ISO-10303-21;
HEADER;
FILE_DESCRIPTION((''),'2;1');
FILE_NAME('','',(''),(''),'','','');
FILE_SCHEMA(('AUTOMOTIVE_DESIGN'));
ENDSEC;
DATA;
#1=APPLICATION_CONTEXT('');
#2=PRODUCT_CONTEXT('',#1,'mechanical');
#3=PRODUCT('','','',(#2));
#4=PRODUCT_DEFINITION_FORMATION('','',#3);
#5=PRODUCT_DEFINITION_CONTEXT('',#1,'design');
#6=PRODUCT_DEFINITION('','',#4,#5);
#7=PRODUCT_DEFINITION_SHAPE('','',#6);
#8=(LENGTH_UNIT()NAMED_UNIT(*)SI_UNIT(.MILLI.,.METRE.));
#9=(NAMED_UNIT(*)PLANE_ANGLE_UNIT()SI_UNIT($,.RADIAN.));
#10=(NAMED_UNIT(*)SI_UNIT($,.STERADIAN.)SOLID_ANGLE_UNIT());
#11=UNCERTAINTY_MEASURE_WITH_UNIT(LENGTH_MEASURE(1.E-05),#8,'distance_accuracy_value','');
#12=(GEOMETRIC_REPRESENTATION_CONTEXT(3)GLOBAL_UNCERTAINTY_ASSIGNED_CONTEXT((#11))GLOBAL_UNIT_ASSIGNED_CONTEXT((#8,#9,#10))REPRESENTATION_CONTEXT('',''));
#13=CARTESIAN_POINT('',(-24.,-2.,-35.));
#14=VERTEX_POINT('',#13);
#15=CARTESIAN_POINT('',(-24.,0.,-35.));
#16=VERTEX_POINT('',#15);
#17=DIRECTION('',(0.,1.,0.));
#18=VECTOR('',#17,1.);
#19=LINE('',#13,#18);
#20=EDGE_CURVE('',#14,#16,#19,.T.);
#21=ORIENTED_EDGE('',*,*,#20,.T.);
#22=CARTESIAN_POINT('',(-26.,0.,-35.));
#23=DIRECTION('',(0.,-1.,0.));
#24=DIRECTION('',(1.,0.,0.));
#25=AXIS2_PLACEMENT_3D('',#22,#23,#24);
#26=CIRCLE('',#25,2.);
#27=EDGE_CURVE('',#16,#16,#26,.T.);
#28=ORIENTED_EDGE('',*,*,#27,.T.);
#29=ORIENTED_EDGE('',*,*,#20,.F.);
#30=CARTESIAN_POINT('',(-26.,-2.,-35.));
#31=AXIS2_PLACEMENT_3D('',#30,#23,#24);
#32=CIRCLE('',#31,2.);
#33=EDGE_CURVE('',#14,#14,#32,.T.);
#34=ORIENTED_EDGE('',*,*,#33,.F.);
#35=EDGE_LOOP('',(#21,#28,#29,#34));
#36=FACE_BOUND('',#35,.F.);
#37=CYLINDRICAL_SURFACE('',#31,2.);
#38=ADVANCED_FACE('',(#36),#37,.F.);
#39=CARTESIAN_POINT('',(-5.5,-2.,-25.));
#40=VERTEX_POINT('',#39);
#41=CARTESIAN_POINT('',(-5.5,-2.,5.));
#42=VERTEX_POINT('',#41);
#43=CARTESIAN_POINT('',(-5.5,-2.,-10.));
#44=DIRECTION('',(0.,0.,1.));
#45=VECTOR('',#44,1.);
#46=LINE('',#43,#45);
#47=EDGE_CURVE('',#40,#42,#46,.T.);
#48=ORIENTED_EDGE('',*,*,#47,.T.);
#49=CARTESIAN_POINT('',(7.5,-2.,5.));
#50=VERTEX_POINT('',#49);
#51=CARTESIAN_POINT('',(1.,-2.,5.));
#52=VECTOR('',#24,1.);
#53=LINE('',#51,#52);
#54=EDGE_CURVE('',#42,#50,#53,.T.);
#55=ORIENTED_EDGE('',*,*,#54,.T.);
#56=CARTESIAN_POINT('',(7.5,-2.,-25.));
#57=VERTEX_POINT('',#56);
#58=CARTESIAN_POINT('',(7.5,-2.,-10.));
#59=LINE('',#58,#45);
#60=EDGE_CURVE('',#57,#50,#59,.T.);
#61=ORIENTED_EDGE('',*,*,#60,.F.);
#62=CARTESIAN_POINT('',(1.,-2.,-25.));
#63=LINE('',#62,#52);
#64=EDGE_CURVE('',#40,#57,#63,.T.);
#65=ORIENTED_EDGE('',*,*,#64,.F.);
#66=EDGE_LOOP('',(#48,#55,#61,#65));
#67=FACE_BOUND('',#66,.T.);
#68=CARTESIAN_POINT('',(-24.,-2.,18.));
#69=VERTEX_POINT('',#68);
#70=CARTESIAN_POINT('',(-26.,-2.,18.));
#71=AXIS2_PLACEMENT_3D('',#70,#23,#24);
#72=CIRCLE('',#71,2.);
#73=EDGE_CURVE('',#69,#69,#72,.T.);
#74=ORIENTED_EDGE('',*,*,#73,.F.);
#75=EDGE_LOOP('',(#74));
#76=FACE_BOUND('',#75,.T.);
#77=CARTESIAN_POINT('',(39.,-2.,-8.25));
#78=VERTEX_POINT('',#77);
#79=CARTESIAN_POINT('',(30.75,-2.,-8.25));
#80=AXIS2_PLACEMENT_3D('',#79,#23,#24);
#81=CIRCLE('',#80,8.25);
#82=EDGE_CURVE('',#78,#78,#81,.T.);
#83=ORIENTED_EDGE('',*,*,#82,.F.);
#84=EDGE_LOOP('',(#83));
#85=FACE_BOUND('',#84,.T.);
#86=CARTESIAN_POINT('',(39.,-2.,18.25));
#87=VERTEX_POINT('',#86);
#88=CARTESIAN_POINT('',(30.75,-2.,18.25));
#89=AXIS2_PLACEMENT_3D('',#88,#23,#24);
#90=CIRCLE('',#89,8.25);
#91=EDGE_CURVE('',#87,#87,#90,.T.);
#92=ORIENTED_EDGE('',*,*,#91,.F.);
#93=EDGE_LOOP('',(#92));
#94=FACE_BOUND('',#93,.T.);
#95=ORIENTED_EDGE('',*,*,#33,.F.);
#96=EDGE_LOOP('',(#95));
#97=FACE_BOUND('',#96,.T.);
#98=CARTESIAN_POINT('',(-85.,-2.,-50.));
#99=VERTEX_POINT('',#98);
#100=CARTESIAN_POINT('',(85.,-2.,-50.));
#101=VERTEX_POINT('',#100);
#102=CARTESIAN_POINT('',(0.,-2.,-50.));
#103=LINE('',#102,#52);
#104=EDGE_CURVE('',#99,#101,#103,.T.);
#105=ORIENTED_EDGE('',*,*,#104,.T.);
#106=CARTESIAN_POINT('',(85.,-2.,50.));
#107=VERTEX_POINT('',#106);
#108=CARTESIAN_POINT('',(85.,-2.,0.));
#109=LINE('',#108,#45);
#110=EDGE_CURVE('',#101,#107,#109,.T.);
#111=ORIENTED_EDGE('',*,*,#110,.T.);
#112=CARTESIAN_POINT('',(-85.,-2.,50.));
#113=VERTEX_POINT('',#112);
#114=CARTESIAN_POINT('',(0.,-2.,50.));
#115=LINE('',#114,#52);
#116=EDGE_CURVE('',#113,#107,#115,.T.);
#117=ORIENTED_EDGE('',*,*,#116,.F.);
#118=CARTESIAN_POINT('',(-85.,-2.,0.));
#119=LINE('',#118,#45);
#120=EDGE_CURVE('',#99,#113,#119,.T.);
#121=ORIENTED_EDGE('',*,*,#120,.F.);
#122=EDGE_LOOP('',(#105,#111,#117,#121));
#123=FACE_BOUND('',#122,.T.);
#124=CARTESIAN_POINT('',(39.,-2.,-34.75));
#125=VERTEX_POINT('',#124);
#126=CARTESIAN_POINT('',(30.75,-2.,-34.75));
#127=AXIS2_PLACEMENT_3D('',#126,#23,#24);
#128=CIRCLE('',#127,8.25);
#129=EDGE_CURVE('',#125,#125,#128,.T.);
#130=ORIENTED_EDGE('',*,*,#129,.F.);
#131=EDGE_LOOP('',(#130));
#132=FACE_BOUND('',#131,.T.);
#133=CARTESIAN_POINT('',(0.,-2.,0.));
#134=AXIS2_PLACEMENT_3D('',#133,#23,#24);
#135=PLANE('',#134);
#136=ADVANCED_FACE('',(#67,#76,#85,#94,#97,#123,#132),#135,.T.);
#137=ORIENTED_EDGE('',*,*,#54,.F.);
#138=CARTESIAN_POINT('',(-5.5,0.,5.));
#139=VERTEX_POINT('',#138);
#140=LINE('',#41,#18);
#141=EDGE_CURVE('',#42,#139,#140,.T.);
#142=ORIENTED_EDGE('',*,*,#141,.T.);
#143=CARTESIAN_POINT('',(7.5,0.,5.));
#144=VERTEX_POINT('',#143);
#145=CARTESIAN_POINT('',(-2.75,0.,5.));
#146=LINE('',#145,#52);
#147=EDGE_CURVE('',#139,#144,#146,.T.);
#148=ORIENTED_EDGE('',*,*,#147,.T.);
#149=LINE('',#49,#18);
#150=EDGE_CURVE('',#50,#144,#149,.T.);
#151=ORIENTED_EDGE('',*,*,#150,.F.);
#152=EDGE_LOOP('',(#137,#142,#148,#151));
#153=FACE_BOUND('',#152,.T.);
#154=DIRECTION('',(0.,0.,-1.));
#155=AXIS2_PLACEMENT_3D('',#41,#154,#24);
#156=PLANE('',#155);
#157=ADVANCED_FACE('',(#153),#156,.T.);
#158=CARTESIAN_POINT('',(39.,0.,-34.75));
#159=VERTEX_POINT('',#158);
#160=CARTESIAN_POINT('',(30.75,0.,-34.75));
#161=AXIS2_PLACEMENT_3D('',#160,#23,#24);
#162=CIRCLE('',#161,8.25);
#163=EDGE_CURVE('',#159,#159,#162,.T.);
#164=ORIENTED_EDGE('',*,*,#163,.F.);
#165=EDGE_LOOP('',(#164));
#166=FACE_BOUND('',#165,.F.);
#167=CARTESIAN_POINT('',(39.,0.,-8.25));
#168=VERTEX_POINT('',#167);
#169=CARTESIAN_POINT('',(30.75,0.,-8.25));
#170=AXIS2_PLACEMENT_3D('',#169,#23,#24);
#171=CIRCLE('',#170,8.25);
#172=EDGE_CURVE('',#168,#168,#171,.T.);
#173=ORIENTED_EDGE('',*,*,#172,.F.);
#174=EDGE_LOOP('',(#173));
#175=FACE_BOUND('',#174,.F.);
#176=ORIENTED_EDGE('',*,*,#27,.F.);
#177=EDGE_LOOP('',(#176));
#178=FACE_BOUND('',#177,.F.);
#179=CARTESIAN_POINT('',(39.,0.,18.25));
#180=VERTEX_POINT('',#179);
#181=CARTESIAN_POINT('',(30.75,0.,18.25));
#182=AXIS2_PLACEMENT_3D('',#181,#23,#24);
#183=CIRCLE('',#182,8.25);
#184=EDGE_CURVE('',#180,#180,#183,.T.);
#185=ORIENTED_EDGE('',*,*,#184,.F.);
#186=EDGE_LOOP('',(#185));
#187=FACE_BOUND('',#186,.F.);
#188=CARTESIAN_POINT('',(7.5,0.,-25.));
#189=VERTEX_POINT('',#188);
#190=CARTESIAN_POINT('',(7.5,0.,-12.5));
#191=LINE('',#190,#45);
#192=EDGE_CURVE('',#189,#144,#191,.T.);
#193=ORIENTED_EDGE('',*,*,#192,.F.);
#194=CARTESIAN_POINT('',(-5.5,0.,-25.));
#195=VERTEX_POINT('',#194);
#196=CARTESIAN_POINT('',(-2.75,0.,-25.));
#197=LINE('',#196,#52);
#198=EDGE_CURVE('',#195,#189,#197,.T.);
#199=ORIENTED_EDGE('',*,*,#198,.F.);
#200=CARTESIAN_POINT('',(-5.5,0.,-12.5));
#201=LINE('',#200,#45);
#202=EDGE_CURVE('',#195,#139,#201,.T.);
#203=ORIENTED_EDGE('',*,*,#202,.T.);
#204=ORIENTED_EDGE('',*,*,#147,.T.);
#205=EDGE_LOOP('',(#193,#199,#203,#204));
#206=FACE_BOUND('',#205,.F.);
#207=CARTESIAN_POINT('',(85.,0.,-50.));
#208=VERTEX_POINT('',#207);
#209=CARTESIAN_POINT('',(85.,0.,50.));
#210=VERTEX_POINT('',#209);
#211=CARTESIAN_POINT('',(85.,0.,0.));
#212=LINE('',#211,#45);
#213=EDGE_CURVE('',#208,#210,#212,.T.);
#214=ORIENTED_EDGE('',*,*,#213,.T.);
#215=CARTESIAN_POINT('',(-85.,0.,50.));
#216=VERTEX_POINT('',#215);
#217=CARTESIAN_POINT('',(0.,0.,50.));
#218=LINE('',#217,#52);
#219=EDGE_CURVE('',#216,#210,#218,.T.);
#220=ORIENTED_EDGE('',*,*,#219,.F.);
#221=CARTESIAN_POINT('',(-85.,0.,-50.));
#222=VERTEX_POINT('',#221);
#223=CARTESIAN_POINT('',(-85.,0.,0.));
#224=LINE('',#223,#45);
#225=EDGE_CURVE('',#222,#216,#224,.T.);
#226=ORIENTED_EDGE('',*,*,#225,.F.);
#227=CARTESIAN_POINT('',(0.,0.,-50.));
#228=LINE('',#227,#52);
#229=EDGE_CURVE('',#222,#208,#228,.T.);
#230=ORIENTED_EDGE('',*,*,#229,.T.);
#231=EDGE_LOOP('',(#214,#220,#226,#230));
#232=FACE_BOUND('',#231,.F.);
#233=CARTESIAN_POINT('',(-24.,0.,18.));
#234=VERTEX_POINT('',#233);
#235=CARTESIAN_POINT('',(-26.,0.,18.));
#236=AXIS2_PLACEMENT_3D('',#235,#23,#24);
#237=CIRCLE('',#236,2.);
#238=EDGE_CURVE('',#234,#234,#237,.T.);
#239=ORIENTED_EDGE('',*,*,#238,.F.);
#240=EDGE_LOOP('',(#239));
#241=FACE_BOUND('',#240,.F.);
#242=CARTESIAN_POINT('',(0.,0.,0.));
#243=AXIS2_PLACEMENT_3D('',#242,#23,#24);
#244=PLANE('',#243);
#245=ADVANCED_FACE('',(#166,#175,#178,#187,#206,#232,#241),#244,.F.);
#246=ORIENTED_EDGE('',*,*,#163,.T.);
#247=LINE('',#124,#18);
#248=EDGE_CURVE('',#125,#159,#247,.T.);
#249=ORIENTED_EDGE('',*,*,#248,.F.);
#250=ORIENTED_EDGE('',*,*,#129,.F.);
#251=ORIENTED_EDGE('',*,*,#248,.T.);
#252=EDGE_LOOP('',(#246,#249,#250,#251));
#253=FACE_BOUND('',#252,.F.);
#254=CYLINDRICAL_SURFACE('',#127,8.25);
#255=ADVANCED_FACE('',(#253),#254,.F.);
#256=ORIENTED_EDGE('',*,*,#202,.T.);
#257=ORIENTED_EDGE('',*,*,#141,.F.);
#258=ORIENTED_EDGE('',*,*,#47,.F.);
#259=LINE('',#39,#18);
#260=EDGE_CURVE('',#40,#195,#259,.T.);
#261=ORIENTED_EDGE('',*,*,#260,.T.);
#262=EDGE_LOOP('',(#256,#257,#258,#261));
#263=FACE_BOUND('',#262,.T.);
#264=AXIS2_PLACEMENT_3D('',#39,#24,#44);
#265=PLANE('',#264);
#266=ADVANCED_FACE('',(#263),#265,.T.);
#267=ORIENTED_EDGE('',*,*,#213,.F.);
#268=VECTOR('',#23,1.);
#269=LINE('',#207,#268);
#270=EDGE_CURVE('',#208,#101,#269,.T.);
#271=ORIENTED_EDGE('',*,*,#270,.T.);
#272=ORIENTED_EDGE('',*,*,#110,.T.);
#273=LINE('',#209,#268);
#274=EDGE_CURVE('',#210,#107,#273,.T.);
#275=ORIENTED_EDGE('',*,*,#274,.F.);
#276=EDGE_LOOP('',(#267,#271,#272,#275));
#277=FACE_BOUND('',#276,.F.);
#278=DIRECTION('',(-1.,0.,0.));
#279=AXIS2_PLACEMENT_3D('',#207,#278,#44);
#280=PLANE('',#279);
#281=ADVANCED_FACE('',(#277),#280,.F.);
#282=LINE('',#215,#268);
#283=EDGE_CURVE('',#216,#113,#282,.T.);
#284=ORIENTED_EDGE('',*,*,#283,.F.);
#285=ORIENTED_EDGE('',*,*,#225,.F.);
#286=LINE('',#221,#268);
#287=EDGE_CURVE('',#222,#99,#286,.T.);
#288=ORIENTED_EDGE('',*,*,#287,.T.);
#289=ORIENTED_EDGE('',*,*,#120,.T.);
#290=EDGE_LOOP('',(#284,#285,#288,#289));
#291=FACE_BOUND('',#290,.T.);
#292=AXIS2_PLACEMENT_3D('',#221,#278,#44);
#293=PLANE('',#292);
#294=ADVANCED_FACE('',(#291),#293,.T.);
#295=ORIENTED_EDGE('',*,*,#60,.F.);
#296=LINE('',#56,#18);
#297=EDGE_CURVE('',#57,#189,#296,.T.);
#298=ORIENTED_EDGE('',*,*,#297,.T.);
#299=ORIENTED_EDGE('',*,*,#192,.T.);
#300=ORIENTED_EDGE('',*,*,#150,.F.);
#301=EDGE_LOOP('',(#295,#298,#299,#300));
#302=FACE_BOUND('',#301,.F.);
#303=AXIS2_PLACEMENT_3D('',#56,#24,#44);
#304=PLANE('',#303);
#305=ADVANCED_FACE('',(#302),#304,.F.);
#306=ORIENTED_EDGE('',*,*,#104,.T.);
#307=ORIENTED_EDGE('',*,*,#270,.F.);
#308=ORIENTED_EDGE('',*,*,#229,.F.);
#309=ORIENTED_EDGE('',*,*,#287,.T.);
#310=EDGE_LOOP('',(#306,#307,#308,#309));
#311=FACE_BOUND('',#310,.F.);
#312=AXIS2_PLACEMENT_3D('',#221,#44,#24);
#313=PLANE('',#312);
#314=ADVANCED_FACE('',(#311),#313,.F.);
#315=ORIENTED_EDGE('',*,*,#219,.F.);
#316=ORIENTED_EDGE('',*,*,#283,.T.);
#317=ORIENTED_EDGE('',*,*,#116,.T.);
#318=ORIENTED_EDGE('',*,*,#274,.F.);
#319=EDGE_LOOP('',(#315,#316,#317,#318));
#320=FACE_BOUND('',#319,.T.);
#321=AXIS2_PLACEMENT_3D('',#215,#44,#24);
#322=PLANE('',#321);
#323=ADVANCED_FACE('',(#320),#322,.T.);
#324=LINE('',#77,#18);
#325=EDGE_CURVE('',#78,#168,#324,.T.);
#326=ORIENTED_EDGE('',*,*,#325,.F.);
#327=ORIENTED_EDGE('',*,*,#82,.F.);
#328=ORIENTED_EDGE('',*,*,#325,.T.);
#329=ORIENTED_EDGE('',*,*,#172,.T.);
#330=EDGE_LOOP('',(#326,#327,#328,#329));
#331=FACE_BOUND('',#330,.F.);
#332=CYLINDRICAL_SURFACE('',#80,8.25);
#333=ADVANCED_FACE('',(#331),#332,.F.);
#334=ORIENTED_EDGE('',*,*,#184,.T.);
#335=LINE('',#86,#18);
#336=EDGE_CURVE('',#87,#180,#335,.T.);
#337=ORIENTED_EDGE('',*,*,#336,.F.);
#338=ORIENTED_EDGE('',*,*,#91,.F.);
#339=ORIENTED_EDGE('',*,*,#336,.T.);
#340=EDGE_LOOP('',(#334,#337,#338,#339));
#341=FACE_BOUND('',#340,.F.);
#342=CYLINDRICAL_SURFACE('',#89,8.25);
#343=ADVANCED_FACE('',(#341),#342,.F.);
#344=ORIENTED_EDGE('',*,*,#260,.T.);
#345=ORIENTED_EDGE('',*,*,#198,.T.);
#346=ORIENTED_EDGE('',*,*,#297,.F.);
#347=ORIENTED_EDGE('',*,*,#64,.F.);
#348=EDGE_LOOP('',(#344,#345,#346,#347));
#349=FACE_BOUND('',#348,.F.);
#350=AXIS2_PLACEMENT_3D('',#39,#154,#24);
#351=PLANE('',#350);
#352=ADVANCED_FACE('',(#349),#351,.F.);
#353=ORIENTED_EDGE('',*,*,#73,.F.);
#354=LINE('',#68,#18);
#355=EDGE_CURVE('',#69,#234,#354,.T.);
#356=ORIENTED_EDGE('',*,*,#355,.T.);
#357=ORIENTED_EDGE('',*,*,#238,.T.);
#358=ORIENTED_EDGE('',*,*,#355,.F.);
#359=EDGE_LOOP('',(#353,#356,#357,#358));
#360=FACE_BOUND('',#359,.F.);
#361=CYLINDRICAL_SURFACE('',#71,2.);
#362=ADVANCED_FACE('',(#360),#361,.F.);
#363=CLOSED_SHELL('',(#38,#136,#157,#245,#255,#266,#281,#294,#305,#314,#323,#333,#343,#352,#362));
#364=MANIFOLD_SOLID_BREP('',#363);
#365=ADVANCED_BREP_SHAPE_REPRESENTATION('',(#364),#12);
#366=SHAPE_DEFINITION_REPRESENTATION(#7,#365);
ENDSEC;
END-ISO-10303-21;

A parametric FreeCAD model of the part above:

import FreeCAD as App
import Part
import Sketcher

V = App.Vector
Q = App.Units.Quantity


def add_polygon(sketch, points):
    """Adds a closed chain of lines whose ends are joined by coincident constraints."""
    first, n = sketch.GeometryCount, len(points)
    for a, b in zip(points, points[1:] + points[:1]):
        sketch.addGeometry(Part.LineSegment(App.Vector(*a, 0), App.Vector(*b, 0)), False)
    for i in range(n):
        sketch.addConstraint(Sketcher.Constraint("Coincident", first + i, 2, first + (i + 1) % n, 1))

doc = App.newDocument("Part")
body = doc.addObject("PartDesign::Body", "Body")

sketch1 = body.newObject("Sketcher::SketchObject", "Sketch")
sketch1.AttachmentSupport = (doc.getObject("XZ_Plane"), [""])
sketch1.MapMode = "FlatFace"
add_polygon(sketch1, [(-85, 50), (-85, -50), (85, -50), (85, 50)])
sketch1.addConstraint([
    Sketcher.Constraint("Vertical", 0),
    Sketcher.Constraint("Horizontal", 1),
    Sketcher.Constraint("Vertical", 2),
    Sketcher.Constraint("Horizontal", 3),
    Sketcher.Constraint("Symmetric", 0, 2, 2, 2, -1, 1),
    Sketcher.Constraint("DistanceX", 1, 1, 1, 2, Q("170 mm")),
    Sketcher.Constraint("DistanceY", 0, 2, 0, 1, Q("100 mm")),
])
pad1 = body.newObject("PartDesign::Pad", "Pad")
pad1.Profile = sketch1
pad1.Length = 2

sketch2 = body.newObject("Sketcher::SketchObject", "Sketch001")
sketch2.AttachmentSupport = (doc.getObject("XZ_Plane"), [""])
sketch2.MapMode = "FlatFace"
sketch2.AttachmentOffset = App.Placement(V(0, 0, 2), App.Rotation())
sketch2.addGeometry(Part.Circle(V(30.75, -34.75, 0), V(0, 0, 1), 8.25), False)
sketch2.addGeometry(Part.Circle(V(30.75, -8.25, 0), V(0, 0, 1), 8.25), False)
sketch2.addGeometry(Part.Circle(V(30.75, 18.25, 0), V(0, 0, 1), 8.25), False)
add_polygon(sketch2, [(-5.5, 5), (-5.5, -25), (7.5, -25), (7.5, 5)])
sketch2.addGeometry(Part.Circle(V(-26, -35, 0), V(0, 0, 1), 2), False)
sketch2.addGeometry(Part.Circle(V(-26, 18, 0), V(0, 0, 1), 2), False)
sketch2.addConstraint([
    Sketcher.Constraint("Vertical", 3),
    Sketcher.Constraint("Horizontal", 4),
    Sketcher.Constraint("Vertical", 5),
    Sketcher.Constraint("Horizontal", 6),
    Sketcher.Constraint("Equal", 0, 1),
    Sketcher.Constraint("Equal", 1, 2),
    Sketcher.Constraint("Equal", 7, 8),
    Sketcher.Constraint("Vertical", 0, 3, 1, 3),
    Sketcher.Constraint("Vertical", 1, 3, 2, 3),
    Sketcher.Constraint("Vertical", 7, 3, 8, 3),
    Sketcher.Constraint("Diameter", 7, Q("4 mm")),
    Sketcher.Constraint("Diameter", 0, Q("16.5 mm")),
    Sketcher.Constraint("DistanceX", 4, 1, 4, 2, Q("13 mm")),
    Sketcher.Constraint("DistanceY", 3, 2, 3, 1, Q("30 mm")),
    Sketcher.Constraint("DistanceX", 7, 3, -1, 1, Q("26 mm")),
    Sketcher.Constraint("DistanceY", 7, 3, -1, 1, Q("35 mm")),
    Sketcher.Constraint("DistanceY", -1, 1, 8, 3, Q("18 mm")),
    Sketcher.Constraint("DistanceY", 3, 2, -1, 1, Q("25 mm")),
    Sketcher.Constraint("DistanceY", 0, 3, 2, 3, Q("53 mm")),
    Sketcher.Constraint("DistanceX", 3, 2, -1, 1, Q("5.5 mm")),
    Sketcher.Constraint("DistanceY", 0, 3, 1, 3, Q("26.5 mm")),
    Sketcher.Constraint("DistanceX", -1, 1, 0, 3, Q("30.75 mm")),
    Sketcher.Constraint("DistanceY", 0, 3, -1, 1, Q("34.75 mm")),
])
pocket1 = body.newObject("PartDesign::Pocket", "Pocket")
pocket1.Profile = sketch2
pocket1.Length = 25

doc.recompute()
